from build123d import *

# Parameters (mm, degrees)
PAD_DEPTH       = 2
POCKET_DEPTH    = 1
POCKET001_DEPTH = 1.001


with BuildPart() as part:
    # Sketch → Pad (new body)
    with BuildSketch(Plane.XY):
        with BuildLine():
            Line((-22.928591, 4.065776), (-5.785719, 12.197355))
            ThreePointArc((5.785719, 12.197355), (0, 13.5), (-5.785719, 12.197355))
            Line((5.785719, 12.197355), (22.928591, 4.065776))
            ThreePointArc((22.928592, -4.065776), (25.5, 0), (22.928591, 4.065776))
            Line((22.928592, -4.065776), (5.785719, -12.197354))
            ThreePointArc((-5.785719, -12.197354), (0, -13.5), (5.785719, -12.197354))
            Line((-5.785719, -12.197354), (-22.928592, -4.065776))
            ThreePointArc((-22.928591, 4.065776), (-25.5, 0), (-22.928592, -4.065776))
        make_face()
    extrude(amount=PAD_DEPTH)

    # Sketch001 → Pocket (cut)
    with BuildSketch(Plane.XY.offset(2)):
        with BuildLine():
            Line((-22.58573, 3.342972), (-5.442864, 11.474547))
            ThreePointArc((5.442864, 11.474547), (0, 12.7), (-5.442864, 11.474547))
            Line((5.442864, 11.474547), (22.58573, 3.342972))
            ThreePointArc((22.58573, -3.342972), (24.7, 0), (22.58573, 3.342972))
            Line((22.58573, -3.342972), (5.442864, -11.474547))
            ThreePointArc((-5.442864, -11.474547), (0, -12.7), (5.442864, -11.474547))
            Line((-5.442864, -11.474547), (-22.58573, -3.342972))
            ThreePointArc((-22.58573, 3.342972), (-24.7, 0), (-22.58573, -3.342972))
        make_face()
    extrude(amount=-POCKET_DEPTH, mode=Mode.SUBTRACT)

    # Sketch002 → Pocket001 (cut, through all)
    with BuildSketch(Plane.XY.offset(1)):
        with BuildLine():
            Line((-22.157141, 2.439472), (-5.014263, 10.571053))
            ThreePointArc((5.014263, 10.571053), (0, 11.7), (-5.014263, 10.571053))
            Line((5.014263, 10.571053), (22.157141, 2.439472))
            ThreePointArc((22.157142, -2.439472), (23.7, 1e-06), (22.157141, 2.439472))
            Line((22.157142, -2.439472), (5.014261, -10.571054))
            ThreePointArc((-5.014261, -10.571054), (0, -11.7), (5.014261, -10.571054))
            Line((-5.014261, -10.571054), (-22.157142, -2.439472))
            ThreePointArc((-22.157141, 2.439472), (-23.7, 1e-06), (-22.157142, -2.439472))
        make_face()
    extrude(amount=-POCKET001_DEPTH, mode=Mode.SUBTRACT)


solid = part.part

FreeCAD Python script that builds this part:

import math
import FreeCAD as App
import Part
import Sketcher
from FreeCAD import Vector
Q = App.Units.Quantity

doc = App.newDocument("Part")
body = doc.addObject("PartDesign::Body", "Body")

# Sketch on XY plane
sketch1 = doc.addObject("Sketcher::SketchObject", "Sketch")
body.addObject(sketch1)
sketch1.AttachmentSupport = (doc.XY_Plane, [""])
sketch1.MapMode = "FlatFace"
sketch1.addGeometry([
    Part.LineSegment(Vector(-5.8, 12.2, 0), Vector(-22.9, 4.1, 0)),  # 0
    Part.ArcOfCircle(Part.Circle(Vector(-21, 0, 0), Vector(0, 0, 1), 4.5), math.radians(115), math.radians(245)),  # 1
    Part.LineSegment(Vector(-22.9, -4.1, 0), Vector(-5.8, -12.2, 0)),  # 2
    Part.ArcOfCircle(Part.Circle(Vector(0, 0, 0), Vector(0, 0, 1), 13.5), math.radians(-115), math.radians(-65)),  # 3
    Part.LineSegment(Vector(5.8, -12.2, 0), Vector(22.9, -4.1, 0)),  # 4
    Part.ArcOfCircle(Part.Circle(Vector(21, 0, 0), Vector(0, 0, 1), 4.5), math.radians(-65), math.radians(65)),  # 5
    Part.LineSegment(Vector(22.9, 4.1, 0), Vector(5.8, 12.2, 0)),  # 6
    Part.ArcOfCircle(Part.Circle(Vector(0, 0, 0), Vector(0, 0, 1), 13.5), math.radians(65), math.radians(115)),  # 7
], False)
sketch1.addConstraint([
    Sketcher.Constraint("Coincident", 0, 2, 1, 1),
    Sketcher.Constraint("Coincident", 1, 2, 2, 1),
    Sketcher.Constraint("Tangent", 2, 2, 3, 1),
    Sketcher.Constraint("Tangent", 3, 2, 4, 1),
    Sketcher.Constraint("Coincident", 4, 2, 5, 1),
    Sketcher.Constraint("Coincident", 5, 2, 6, 1),
    Sketcher.Constraint("Tangent", 6, 2, 7, 1),
    Sketcher.Constraint("Tangent", 7, 2, 0, 1),
    Sketcher.Constraint("Coincident", 3, 3, -1, 1),
    Sketcher.Constraint("Coincident", 7, 3, -1, 1),
    Sketcher.Constraint("Equal", 1, 5),
    Sketcher.Constraint("Symmetric", 1, 3, 5, 3, -1, 1),
    Sketcher.Constraint("Symmetric", 1, 2, 4, 2, -2),
    Sketcher.Constraint("Parallel", 0, 4),
    Sketcher.Constraint("Horizontal", 0, 2, 5, 2),
    Sketcher.Constraint("Vertical", 0, 2, 1, 2),
    Sketcher.Constraint("Radius", 1, Q("4.5 mm")),
    Sketcher.Constraint("DistanceX", 1, 3, -1, 1, Q("21 mm")),
    Sketcher.Constraint("Radius", 3, Q("13.499996 mm")),
    Sketcher.Constraint("DistanceX", 0, 2, -1, 1, Q("22.928591 mm")),
])
pad1 = doc.addObject("PartDesign::Pad", "Pad")
body.addObject(pad1)
pad1.Profile = sketch1
pad1.Length = 2

# Sketch on XY plane
sketch2 = doc.addObject("Sketcher::SketchObject", "Sketch001")
body.addObject(sketch2)
sketch2.AttachmentSupport = (doc.XY_Plane, [""])
sketch2.MapMode = "FlatFace"
sketch2.AttachmentOffset = App.Placement(Vector(0, 0, 2), App.Rotation())
sketch2.addGeometry([
    Part.LineSegment(Vector(-5.4, 11.5, 0), Vector(-22.6, 3.3, 0)),  # 0
    Part.ArcOfCircle(Part.Circle(Vector(-21, 0, 0), Vector(0, 0, 1), 3.7), math.radians(115), math.radians(245)),  # 1
    Part.LineSegment(Vector(-22.6, -3.3, 0), Vector(-5.4, -11.5, 0)),  # 2
    Part.ArcOfCircle(Part.Circle(Vector(0, 0, 0), Vector(0, 0, 1), 12.7), math.radians(-115), math.radians(-65)),  # 3
    Part.LineSegment(Vector(5.4, -11.5, 0), Vector(22.6, -3.3, 0)),  # 4
    Part.ArcOfCircle(Part.Circle(Vector(21, 0, 0), Vector(0, 0, 1), 3.7), math.radians(-65), math.radians(65)),  # 5
    Part.LineSegment(Vector(22.6, 3.3, 0), Vector(5.4, 11.5, 0)),  # 6
    Part.ArcOfCircle(Part.Circle(Vector(0, 0, 0), Vector(0, 0, 1), 12.7), math.radians(65), math.radians(115)),  # 7
], False)
sketch2.addConstraint([
    Sketcher.Constraint("Coincident", 0, 2, 1, 1),
    Sketcher.Constraint("Coincident", 1, 2, 2, 1),
    Sketcher.Constraint("Tangent", 2, 2, 3, 1),
    Sketcher.Constraint("Tangent", 3, 2, 4, 1),
    Sketcher.Constraint("Coincident", 4, 2, 5, 1),
    Sketcher.Constraint("Coincident", 5, 2, 6, 1),
    Sketcher.Constraint("Tangent", 6, 2, 7, 1),
    Sketcher.Constraint("Tangent", 7, 2, 0, 1),
    Sketcher.Constraint("Coincident", 3, 3, -1, 1),
    Sketcher.Constraint("Coincident", 7, 3, -1, 1),
    Sketcher.Constraint("Equal", 1, 5),
    Sketcher.Constraint("Equal", 3, 7),
    Sketcher.Constraint("Symmetric", 1, 3, 5, 3, -1, 1),
    Sketcher.Constraint("Symmetric", 1, 2, 4, 2, -2),
    Sketcher.Constraint("Horizontal", 0, 2, 5, 2),
    Sketcher.Constraint("Vertical", 0, 2, 1, 2),
    Sketcher.Constraint("Radius", 1, Q("3.7 mm")),
    Sketcher.Constraint("Radius", 3, Q("12.699999 mm")),
    Sketcher.Constraint("DistanceX", 1, 3, -1, 1, Q("21 mm")),
    Sketcher.Constraint("DistanceX", 0, 2, -1, 1, Q("22.58573 mm")),
])
pocket1 = doc.addObject("PartDesign::Pocket", "Pocket")
body.addObject(pocket1)
pocket1.Profile = sketch2
pocket1.Length = 1

# Sketch on XY plane
sketch3 = doc.addObject("Sketcher::SketchObject", "Sketch002")
body.addObject(sketch3)
sketch3.AttachmentSupport = (doc.XY_Plane, [""])
sketch3.MapMode = "FlatFace"
sketch3.AttachmentOffset = App.Placement(Vector(0, 0, 1), App.Rotation())
sketch3.addGeometry([
    Part.LineSegment(Vector(-5, 10.6, 0), Vector(-22.2, 2.4, 0)),  # 0
    Part.ArcOfCircle(Part.Circle(Vector(-21, 0, 0), Vector(0, 0, 1), 2.7), math.radians(115), math.radians(245)),  # 1
    Part.LineSegment(Vector(-22.2, -2.4, 0), Vector(-5, -10.6, 0)),  # 2
    Part.ArcOfCircle(Part.Circle(Vector(0, 0, 0), Vector(0, 0, 1), 11.7), math.radians(-115), math.radians(-65)),  # 3
    Part.LineSegment(Vector(5, -10.6, 0), Vector(22.2, -2.4, 0)),  # 4
    Part.ArcOfCircle(Part.Circle(Vector(21, 0, 0), Vector(0, 0, 1), 2.7), math.radians(-65), math.radians(65)),  # 5
    Part.LineSegment(Vector(22.2, 2.4, 0), Vector(5, 10.6, 0)),  # 6
    Part.ArcOfCircle(Part.Circle(Vector(0, 0, 0), Vector(0, 0, 1), 11.7), math.radians(65), math.radians(115)),  # 7
], False)
sketch3.addConstraint([
    Sketcher.Constraint("Tangent", 0, 2, 1, 1),
    Sketcher.Constraint("Tangent", 1, 2, 2, 1),
    Sketcher.Constraint("Coincident", 2, 2, 3, 1),
    Sketcher.Constraint("Coincident", 3, 2, 4, 1),
    Sketcher.Constraint("Tangent", 4, 2, 5, 1),
    Sketcher.Constraint("Tangent", 5, 2, 6, 1),
    Sketcher.Constraint("Coincident", 6, 2, 7, 1),
    Sketcher.Constraint("Coincident", 7, 2, 0, 1),
    Sketcher.Constraint("Coincident", 3, 3, -1, 1),
    Sketcher.Constraint("Coincident", 7, 3, -1, 1),
    Sketcher.Constraint("Equal", 1, 5),
    Sketcher.Constraint("Equal", 3, 7),
    Sketcher.Constraint("Symmetric", 1, 3, 5, 3, -1, 1),
    Sketcher.Constraint("PointOnObject", 1, 3, -1),
    Sketcher.Constraint("Horizontal", 2, 2, 3, 2),
    Sketcher.Constraint("Horizontal", 6, 2, 7, 2),
    Sketcher.Constraint("Radius", 1, Q("2.7 mm")),
    Sketcher.Constraint("Radius", 3, Q("11.699998 mm")),
    Sketcher.Constraint("DistanceX", 1, 3, -1, 1, Q("21 mm")),
    Sketcher.Constraint("Distance", 0, Q("18.973689 mm")),
    Sketcher.Constraint("DistanceX", 2, 2, -1, 1, Q("5.014261 mm")),
])
pocket2 = doc.addObject("PartDesign::Pocket", "Pocket001")
body.addObject(pocket2)
pocket2.Profile = sketch3
pocket2.Type = "ThroughAll"

doc.recompute()
